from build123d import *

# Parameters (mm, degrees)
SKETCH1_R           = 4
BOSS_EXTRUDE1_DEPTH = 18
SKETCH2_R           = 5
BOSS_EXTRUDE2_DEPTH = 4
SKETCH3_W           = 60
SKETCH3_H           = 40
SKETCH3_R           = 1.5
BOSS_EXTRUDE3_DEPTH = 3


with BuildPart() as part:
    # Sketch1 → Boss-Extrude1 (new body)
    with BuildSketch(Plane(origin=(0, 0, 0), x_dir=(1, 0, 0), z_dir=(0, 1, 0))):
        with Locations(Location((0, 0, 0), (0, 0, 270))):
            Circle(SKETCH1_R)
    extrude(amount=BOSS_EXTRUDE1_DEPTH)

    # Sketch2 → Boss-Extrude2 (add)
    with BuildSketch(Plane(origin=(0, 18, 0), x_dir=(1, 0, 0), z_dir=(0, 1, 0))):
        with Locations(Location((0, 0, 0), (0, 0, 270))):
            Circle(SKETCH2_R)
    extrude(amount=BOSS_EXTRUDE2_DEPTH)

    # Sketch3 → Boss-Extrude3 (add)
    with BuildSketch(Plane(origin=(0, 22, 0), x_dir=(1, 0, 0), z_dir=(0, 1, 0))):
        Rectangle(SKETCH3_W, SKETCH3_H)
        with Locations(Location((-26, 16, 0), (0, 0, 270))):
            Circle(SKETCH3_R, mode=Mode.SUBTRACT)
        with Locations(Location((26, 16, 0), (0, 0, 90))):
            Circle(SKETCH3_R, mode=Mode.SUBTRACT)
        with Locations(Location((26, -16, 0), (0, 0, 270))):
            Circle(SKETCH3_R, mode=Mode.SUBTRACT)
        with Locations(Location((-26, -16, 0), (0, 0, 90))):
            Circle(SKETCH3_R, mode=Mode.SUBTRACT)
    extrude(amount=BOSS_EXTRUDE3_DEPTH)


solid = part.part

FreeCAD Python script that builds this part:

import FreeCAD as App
import Part
import Sketcher

V = App.Vector
Q = App.Units.Quantity

doc = App.newDocument("Part")
body = doc.addObject("PartDesign::Body", "Body")

# Sketch on XZ plane
sketch1 = doc.addObject("Sketcher::SketchObject", "Sketch")
body.addObject(sketch1)
sketch1.AttachmentSupport = (doc.XZ_Plane, [""])
sketch1.MapMode = "FlatFace"
sketch1.addGeometry(Part.Circle(V(0, 0, 0), V(0, 0, 1), 4), False)
sketch1.addConstraint(Sketcher.Constraint("Coincident", 0, 3, -1, 1))
sketch1.addConstraint(Sketcher.Constraint("Diameter", 0, Q("8 mm")))
pad1 = doc.addObject("PartDesign::Pad", "Pad")
body.addObject(pad1)
pad1.Profile = sketch1
pad1.Length = 18
pad1.Reversed = True

# Sketch on XZ plane
sketch2 = doc.addObject("Sketcher::SketchObject", "Sketch001")
body.addObject(sketch2)
sketch2.AttachmentSupport = (doc.XZ_Plane, [""])
sketch2.MapMode = "FlatFace"
sketch2.AttachmentOffset = App.Placement(V(0, 0, -18), App.Rotation())
sketch2.addGeometry(Part.Circle(V(0, 0, 0), V(0, 0, 1), 5), False)
sketch2.addConstraint(Sketcher.Constraint("Coincident", 0, 3, -1, 1))
sketch2.addConstraint(Sketcher.Constraint("Diameter", 0, Q("10 mm")))
pad2 = doc.addObject("PartDesign::Pad", "Pad001")
body.addObject(pad2)
pad2.Profile = sketch2
pad2.Length = 4
pad2.Reversed = True

# Sketch on XZ plane
sketch3 = doc.addObject("Sketcher::SketchObject", "Sketch002")
body.addObject(sketch3)
sketch3.AttachmentSupport = (doc.XZ_Plane, [""])
sketch3.MapMode = "FlatFace"
sketch3.AttachmentOffset = App.Placement(V(0, 0, -22), App.Rotation())
sketch3.addGeometry(Part.LineSegment(V(-30, -20, 0), V(-30, 20, 0)), False)
sketch3.addGeometry(Part.LineSegment(V(-30, 20, 0), V(30, 20, 0)), False)
sketch3.addGeometry(Part.LineSegment(V(30, 20, 0), V(30, -20, 0)), False)
sketch3.addGeometry(Part.LineSegment(V(30, -20, 0), V(-30, -20, 0)), False)
sketch3.addGeometry(Part.Circle(V(-26, 16, 0), V(0, 0, 1), 1.5), False)
sketch3.addGeometry(Part.Circle(V(26, 16, 0), V(0, 0, 1), 1.5), False)
sketch3.addGeometry(Part.Circle(V(-26, -16, 0), V(0, 0, 1), 1.5), False)
sketch3.addGeometry(Part.Circle(V(26, -16, 0), V(0, 0, 1), 1.5), False)
sketch3.addConstraint(Sketcher.Constraint("Coincident", 0, 2, 1, 1))
sketch3.addConstraint(Sketcher.Constraint("Coincident", 1, 2, 2, 1))
sketch3.addConstraint(Sketcher.Constraint("Coincident", 2, 2, 3, 1))
sketch3.addConstraint(Sketcher.Constraint("Coincident", 3, 2, 0, 1))
sketch3.addConstraint(Sketcher.Constraint("Vertical", 0))
sketch3.addConstraint(Sketcher.Constraint("Horizontal", 1))
sketch3.addConstraint(Sketcher.Constraint("Vertical", 2))
sketch3.addConstraint(Sketcher.Constraint("Horizontal", 3))
sketch3.addConstraint(Sketcher.Constraint("Equal", 4, 5))
sketch3.addConstraint(Sketcher.Constraint("Equal", 5, 6))
sketch3.addConstraint(Sketcher.Constraint("Equal", 6, 7))
sketch3.addConstraint(Sketcher.Constraint("Symmetric", 5, 3, 6, 3, -1, 1))
sketch3.addConstraint(Sketcher.Constraint("Symmetric", 4, 3, 7, 3, -1, 1))
sketch3.addConstraint(Sketcher.Constraint("Symmetric", 0, 2, 2, 2, -1, 1))
sketch3.addConstraint(Sketcher.Constraint("Symmetric", 4, 3, 5, 3, -2))
sketch3.addConstraint(Sketcher.Constraint("Diameter", 4, Q("3 mm")))
sketch3.addConstraint(Sketcher.Constraint("DistanceX", 1, 1, 1, 2, Q("60 mm")))
sketch3.addConstraint(Sketcher.Constraint("DistanceY", 0, 1, 0, 2, Q("40 mm")))
sketch3.addConstraint(Sketcher.Constraint("DistanceX", 4, 3, -1, 1, Q("26 mm")))
sketch3.addConstraint(Sketcher.Constraint("DistanceY", -1, 1, 4, 3, Q("16 mm")))
pad3 = doc.addObject("PartDesign::Pad", "Pad002")
body.addObject(pad3)
pad3.Profile = sketch3
pad3.Length = 3
pad3.Reversed = True

doc.recompute()
